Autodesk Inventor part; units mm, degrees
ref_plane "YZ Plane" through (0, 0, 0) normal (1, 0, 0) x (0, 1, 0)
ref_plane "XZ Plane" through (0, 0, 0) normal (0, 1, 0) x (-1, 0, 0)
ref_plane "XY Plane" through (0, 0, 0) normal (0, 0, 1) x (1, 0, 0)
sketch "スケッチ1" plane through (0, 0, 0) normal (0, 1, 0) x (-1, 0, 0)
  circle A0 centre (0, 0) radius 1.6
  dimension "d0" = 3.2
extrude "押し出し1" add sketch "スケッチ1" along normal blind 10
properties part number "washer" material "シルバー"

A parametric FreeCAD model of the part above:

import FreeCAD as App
import Part
import Sketcher

doc = App.newDocument("Part")
body = doc.addObject("PartDesign::Body", "Body")

# Sketch on XZ plane
sketch1 = body.newObject("Sketcher::SketchObject", "Sketch")
sketch1.AttachmentSupport = (doc.getObject("XZ_Plane"), [""])
sketch1.MapMode = "FlatFace"
sketch1.addGeometry(Part.Circle(App.Vector(0, 0, 0), App.Vector(0, 0, 1), 1.6), False)
sketch1.addConstraint(Sketcher.Constraint("Coincident", 0, 3, -1, 1))
sketch1.addConstraint(Sketcher.Constraint("Diameter", 0, 3.2))
pad1 = body.newObject("PartDesign::Pad", "Pad")
pad1.Profile = sketch1
pad1.Length = 10
pad1.Reversed = True

doc.recompute()
